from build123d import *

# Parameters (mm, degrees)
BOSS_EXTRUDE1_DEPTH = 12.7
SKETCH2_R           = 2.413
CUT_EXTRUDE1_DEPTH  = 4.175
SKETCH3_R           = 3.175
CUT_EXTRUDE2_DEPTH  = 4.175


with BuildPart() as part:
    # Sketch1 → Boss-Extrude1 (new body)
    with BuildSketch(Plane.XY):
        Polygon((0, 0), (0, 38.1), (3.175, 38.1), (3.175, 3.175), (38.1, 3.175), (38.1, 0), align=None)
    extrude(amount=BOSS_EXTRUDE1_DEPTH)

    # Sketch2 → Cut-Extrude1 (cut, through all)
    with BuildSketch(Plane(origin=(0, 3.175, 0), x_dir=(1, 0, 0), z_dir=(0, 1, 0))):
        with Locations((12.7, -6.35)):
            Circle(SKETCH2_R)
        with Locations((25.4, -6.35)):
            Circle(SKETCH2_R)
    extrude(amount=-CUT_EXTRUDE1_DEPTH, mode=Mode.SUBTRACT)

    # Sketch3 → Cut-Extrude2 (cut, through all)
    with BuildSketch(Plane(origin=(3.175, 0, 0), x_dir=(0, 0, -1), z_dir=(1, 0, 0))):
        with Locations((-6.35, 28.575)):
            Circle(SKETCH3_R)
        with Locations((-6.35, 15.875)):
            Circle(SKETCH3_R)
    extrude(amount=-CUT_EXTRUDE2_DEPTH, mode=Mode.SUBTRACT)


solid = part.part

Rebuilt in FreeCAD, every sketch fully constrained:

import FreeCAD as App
import Part
import Sketcher
from FreeCAD import Vector
Q = App.Units.Quantity


def add_polygon(sketch, points):
    """Adds a closed chain of lines whose ends are joined by coincident constraints."""
    first, n = sketch.GeometryCount, len(points)
    for a, b in zip(points, points[1:] + points[:1]):
        sketch.addGeometry(Part.LineSegment(App.Vector(*a, 0), App.Vector(*b, 0)), False)
    for i in range(n):
        sketch.addConstraint(Sketcher.Constraint("Coincident", first + i, 2, first + (i + 1) % n, 1))

doc = App.newDocument("Part")
body = doc.addObject("PartDesign::Body", "Body")

# Sketch on XY plane
sketch1 = body.newObject("Sketcher::SketchObject", "Sketch")
sketch1.AttachmentSupport = (doc.getObject("XY_Plane"), [""])
sketch1.MapMode = "FlatFace"
add_polygon(sketch1, [(0, 38.1), (0, 0), (38.1, 0), (38.1, 3.2), (3.2, 3.2), (3.2, 38.1)])  # lines 0-5
sketch1.addConstraint(Sketcher.Constraint("Vertical", 0))
sketch1.addConstraint(Sketcher.Constraint("Horizontal", 1))
sketch1.addConstraint(Sketcher.Constraint("Vertical", 2))
sketch1.addConstraint(Sketcher.Constraint("Horizontal", 3))
sketch1.addConstraint(Sketcher.Constraint("Vertical", 4))
sketch1.addConstraint(Sketcher.Constraint("Horizontal", 5))
sketch1.addConstraint(Sketcher.Constraint("Coincident", 0, 2, -1, 1))
sketch1.addConstraint(Sketcher.Constraint("Equal", 1, 0))
sketch1.addConstraint(Sketcher.Constraint("Equal", 5, 2))
sketch1.addConstraint(Sketcher.Constraint("DistanceX", 1, 1, 1, 2, Q("1.5 in")))
sketch1.addConstraint(Sketcher.Constraint("DistanceX", 3, 2, 3, 1, Q("1.375 in")))
pad1 = body.newObject("PartDesign::Pad", "Pad")
pad1.Profile = sketch1
pad1.Length = Q("0.5 in")

# Sketch on XZ plane
sketch2 = body.newObject("Sketcher::SketchObject", "Sketch001")
sketch2.AttachmentSupport = (doc.getObject("XZ_Plane"), [""])
sketch2.MapMode = "FlatFace"
sketch2.AttachmentOffset = App.Placement(Vector(0, 0, -0.125 * 25.4), App.Rotation())
sketch2.addGeometry(Part.Circle(Vector(12.7, 6.3, 0), Vector(0, 0, 1), 2.4), False)
sketch2.addGeometry(Part.Circle(Vector(25.4, 6.3, 0), Vector(0, 0, 1), 2.4), False)
sketch2.addConstraint(Sketcher.Constraint("Equal", 0, 1))
sketch2.addConstraint(Sketcher.Constraint("Horizontal", 0, 3, 1, 3))
sketch2.addConstraint(Sketcher.Constraint("Diameter", 0, Q("0.19 in")))
sketch2.addConstraint(Sketcher.Constraint("DistanceX", -1, 1, 1, 3, Q("1 in")))
sketch2.addConstraint(Sketcher.Constraint("DistanceX", -1, 1, 0, 3, Q("0.5 in")))
sketch2.addConstraint(Sketcher.Constraint("DistanceY", -1, 1, 0, 3, Q("0.25 in")))
pocket1 = body.newObject("PartDesign::Pocket", "Pocket")
pocket1.Profile = sketch2
pocket1.Type = "ThroughAll"
pocket1.Reversed = True

# Sketch on YZ plane
sketch3 = body.newObject("Sketcher::SketchObject", "Sketch002")
sketch3.AttachmentSupport = (doc.getObject("YZ_Plane"), [""])
sketch3.MapMode = "FlatFace"
sketch3.AttachmentOffset = App.Placement(Vector(0, 0, 0.125 * 25.4), App.Rotation())
sketch3.addGeometry(Part.Circle(Vector(28.6, 6.3, 0), Vector(0, 0, 1), 3.2), False)
sketch3.addGeometry(Part.Circle(Vector(15.9, 6.3, 0), Vector(0, 0, 1), 3.2), False)
sketch3.addConstraint(Sketcher.Constraint("Equal", 0, 1))
sketch3.addConstraint(Sketcher.Constraint("Horizontal", 0, 3, 1, 3))
sketch3.addConstraint(Sketcher.Constraint("Diameter", 0, Q("0.25 in")))
sketch3.addConstraint(Sketcher.Constraint("DistanceX", 1, 3, 0, 3, Q("0.5 in")))
sketch3.addConstraint(Sketcher.Constraint("DistanceY", -1, 1, 0, 3, Q("0.25 in")))
sketch3.addConstraint(Sketcher.Constraint("DistanceX", -1, 1, 0, 3, Q("1.125 in")))
pocket2 = body.newObject("PartDesign::Pocket", "Pocket001")
pocket2.Profile = sketch3
pocket2.Type = "ThroughAll"

doc.recompute()
